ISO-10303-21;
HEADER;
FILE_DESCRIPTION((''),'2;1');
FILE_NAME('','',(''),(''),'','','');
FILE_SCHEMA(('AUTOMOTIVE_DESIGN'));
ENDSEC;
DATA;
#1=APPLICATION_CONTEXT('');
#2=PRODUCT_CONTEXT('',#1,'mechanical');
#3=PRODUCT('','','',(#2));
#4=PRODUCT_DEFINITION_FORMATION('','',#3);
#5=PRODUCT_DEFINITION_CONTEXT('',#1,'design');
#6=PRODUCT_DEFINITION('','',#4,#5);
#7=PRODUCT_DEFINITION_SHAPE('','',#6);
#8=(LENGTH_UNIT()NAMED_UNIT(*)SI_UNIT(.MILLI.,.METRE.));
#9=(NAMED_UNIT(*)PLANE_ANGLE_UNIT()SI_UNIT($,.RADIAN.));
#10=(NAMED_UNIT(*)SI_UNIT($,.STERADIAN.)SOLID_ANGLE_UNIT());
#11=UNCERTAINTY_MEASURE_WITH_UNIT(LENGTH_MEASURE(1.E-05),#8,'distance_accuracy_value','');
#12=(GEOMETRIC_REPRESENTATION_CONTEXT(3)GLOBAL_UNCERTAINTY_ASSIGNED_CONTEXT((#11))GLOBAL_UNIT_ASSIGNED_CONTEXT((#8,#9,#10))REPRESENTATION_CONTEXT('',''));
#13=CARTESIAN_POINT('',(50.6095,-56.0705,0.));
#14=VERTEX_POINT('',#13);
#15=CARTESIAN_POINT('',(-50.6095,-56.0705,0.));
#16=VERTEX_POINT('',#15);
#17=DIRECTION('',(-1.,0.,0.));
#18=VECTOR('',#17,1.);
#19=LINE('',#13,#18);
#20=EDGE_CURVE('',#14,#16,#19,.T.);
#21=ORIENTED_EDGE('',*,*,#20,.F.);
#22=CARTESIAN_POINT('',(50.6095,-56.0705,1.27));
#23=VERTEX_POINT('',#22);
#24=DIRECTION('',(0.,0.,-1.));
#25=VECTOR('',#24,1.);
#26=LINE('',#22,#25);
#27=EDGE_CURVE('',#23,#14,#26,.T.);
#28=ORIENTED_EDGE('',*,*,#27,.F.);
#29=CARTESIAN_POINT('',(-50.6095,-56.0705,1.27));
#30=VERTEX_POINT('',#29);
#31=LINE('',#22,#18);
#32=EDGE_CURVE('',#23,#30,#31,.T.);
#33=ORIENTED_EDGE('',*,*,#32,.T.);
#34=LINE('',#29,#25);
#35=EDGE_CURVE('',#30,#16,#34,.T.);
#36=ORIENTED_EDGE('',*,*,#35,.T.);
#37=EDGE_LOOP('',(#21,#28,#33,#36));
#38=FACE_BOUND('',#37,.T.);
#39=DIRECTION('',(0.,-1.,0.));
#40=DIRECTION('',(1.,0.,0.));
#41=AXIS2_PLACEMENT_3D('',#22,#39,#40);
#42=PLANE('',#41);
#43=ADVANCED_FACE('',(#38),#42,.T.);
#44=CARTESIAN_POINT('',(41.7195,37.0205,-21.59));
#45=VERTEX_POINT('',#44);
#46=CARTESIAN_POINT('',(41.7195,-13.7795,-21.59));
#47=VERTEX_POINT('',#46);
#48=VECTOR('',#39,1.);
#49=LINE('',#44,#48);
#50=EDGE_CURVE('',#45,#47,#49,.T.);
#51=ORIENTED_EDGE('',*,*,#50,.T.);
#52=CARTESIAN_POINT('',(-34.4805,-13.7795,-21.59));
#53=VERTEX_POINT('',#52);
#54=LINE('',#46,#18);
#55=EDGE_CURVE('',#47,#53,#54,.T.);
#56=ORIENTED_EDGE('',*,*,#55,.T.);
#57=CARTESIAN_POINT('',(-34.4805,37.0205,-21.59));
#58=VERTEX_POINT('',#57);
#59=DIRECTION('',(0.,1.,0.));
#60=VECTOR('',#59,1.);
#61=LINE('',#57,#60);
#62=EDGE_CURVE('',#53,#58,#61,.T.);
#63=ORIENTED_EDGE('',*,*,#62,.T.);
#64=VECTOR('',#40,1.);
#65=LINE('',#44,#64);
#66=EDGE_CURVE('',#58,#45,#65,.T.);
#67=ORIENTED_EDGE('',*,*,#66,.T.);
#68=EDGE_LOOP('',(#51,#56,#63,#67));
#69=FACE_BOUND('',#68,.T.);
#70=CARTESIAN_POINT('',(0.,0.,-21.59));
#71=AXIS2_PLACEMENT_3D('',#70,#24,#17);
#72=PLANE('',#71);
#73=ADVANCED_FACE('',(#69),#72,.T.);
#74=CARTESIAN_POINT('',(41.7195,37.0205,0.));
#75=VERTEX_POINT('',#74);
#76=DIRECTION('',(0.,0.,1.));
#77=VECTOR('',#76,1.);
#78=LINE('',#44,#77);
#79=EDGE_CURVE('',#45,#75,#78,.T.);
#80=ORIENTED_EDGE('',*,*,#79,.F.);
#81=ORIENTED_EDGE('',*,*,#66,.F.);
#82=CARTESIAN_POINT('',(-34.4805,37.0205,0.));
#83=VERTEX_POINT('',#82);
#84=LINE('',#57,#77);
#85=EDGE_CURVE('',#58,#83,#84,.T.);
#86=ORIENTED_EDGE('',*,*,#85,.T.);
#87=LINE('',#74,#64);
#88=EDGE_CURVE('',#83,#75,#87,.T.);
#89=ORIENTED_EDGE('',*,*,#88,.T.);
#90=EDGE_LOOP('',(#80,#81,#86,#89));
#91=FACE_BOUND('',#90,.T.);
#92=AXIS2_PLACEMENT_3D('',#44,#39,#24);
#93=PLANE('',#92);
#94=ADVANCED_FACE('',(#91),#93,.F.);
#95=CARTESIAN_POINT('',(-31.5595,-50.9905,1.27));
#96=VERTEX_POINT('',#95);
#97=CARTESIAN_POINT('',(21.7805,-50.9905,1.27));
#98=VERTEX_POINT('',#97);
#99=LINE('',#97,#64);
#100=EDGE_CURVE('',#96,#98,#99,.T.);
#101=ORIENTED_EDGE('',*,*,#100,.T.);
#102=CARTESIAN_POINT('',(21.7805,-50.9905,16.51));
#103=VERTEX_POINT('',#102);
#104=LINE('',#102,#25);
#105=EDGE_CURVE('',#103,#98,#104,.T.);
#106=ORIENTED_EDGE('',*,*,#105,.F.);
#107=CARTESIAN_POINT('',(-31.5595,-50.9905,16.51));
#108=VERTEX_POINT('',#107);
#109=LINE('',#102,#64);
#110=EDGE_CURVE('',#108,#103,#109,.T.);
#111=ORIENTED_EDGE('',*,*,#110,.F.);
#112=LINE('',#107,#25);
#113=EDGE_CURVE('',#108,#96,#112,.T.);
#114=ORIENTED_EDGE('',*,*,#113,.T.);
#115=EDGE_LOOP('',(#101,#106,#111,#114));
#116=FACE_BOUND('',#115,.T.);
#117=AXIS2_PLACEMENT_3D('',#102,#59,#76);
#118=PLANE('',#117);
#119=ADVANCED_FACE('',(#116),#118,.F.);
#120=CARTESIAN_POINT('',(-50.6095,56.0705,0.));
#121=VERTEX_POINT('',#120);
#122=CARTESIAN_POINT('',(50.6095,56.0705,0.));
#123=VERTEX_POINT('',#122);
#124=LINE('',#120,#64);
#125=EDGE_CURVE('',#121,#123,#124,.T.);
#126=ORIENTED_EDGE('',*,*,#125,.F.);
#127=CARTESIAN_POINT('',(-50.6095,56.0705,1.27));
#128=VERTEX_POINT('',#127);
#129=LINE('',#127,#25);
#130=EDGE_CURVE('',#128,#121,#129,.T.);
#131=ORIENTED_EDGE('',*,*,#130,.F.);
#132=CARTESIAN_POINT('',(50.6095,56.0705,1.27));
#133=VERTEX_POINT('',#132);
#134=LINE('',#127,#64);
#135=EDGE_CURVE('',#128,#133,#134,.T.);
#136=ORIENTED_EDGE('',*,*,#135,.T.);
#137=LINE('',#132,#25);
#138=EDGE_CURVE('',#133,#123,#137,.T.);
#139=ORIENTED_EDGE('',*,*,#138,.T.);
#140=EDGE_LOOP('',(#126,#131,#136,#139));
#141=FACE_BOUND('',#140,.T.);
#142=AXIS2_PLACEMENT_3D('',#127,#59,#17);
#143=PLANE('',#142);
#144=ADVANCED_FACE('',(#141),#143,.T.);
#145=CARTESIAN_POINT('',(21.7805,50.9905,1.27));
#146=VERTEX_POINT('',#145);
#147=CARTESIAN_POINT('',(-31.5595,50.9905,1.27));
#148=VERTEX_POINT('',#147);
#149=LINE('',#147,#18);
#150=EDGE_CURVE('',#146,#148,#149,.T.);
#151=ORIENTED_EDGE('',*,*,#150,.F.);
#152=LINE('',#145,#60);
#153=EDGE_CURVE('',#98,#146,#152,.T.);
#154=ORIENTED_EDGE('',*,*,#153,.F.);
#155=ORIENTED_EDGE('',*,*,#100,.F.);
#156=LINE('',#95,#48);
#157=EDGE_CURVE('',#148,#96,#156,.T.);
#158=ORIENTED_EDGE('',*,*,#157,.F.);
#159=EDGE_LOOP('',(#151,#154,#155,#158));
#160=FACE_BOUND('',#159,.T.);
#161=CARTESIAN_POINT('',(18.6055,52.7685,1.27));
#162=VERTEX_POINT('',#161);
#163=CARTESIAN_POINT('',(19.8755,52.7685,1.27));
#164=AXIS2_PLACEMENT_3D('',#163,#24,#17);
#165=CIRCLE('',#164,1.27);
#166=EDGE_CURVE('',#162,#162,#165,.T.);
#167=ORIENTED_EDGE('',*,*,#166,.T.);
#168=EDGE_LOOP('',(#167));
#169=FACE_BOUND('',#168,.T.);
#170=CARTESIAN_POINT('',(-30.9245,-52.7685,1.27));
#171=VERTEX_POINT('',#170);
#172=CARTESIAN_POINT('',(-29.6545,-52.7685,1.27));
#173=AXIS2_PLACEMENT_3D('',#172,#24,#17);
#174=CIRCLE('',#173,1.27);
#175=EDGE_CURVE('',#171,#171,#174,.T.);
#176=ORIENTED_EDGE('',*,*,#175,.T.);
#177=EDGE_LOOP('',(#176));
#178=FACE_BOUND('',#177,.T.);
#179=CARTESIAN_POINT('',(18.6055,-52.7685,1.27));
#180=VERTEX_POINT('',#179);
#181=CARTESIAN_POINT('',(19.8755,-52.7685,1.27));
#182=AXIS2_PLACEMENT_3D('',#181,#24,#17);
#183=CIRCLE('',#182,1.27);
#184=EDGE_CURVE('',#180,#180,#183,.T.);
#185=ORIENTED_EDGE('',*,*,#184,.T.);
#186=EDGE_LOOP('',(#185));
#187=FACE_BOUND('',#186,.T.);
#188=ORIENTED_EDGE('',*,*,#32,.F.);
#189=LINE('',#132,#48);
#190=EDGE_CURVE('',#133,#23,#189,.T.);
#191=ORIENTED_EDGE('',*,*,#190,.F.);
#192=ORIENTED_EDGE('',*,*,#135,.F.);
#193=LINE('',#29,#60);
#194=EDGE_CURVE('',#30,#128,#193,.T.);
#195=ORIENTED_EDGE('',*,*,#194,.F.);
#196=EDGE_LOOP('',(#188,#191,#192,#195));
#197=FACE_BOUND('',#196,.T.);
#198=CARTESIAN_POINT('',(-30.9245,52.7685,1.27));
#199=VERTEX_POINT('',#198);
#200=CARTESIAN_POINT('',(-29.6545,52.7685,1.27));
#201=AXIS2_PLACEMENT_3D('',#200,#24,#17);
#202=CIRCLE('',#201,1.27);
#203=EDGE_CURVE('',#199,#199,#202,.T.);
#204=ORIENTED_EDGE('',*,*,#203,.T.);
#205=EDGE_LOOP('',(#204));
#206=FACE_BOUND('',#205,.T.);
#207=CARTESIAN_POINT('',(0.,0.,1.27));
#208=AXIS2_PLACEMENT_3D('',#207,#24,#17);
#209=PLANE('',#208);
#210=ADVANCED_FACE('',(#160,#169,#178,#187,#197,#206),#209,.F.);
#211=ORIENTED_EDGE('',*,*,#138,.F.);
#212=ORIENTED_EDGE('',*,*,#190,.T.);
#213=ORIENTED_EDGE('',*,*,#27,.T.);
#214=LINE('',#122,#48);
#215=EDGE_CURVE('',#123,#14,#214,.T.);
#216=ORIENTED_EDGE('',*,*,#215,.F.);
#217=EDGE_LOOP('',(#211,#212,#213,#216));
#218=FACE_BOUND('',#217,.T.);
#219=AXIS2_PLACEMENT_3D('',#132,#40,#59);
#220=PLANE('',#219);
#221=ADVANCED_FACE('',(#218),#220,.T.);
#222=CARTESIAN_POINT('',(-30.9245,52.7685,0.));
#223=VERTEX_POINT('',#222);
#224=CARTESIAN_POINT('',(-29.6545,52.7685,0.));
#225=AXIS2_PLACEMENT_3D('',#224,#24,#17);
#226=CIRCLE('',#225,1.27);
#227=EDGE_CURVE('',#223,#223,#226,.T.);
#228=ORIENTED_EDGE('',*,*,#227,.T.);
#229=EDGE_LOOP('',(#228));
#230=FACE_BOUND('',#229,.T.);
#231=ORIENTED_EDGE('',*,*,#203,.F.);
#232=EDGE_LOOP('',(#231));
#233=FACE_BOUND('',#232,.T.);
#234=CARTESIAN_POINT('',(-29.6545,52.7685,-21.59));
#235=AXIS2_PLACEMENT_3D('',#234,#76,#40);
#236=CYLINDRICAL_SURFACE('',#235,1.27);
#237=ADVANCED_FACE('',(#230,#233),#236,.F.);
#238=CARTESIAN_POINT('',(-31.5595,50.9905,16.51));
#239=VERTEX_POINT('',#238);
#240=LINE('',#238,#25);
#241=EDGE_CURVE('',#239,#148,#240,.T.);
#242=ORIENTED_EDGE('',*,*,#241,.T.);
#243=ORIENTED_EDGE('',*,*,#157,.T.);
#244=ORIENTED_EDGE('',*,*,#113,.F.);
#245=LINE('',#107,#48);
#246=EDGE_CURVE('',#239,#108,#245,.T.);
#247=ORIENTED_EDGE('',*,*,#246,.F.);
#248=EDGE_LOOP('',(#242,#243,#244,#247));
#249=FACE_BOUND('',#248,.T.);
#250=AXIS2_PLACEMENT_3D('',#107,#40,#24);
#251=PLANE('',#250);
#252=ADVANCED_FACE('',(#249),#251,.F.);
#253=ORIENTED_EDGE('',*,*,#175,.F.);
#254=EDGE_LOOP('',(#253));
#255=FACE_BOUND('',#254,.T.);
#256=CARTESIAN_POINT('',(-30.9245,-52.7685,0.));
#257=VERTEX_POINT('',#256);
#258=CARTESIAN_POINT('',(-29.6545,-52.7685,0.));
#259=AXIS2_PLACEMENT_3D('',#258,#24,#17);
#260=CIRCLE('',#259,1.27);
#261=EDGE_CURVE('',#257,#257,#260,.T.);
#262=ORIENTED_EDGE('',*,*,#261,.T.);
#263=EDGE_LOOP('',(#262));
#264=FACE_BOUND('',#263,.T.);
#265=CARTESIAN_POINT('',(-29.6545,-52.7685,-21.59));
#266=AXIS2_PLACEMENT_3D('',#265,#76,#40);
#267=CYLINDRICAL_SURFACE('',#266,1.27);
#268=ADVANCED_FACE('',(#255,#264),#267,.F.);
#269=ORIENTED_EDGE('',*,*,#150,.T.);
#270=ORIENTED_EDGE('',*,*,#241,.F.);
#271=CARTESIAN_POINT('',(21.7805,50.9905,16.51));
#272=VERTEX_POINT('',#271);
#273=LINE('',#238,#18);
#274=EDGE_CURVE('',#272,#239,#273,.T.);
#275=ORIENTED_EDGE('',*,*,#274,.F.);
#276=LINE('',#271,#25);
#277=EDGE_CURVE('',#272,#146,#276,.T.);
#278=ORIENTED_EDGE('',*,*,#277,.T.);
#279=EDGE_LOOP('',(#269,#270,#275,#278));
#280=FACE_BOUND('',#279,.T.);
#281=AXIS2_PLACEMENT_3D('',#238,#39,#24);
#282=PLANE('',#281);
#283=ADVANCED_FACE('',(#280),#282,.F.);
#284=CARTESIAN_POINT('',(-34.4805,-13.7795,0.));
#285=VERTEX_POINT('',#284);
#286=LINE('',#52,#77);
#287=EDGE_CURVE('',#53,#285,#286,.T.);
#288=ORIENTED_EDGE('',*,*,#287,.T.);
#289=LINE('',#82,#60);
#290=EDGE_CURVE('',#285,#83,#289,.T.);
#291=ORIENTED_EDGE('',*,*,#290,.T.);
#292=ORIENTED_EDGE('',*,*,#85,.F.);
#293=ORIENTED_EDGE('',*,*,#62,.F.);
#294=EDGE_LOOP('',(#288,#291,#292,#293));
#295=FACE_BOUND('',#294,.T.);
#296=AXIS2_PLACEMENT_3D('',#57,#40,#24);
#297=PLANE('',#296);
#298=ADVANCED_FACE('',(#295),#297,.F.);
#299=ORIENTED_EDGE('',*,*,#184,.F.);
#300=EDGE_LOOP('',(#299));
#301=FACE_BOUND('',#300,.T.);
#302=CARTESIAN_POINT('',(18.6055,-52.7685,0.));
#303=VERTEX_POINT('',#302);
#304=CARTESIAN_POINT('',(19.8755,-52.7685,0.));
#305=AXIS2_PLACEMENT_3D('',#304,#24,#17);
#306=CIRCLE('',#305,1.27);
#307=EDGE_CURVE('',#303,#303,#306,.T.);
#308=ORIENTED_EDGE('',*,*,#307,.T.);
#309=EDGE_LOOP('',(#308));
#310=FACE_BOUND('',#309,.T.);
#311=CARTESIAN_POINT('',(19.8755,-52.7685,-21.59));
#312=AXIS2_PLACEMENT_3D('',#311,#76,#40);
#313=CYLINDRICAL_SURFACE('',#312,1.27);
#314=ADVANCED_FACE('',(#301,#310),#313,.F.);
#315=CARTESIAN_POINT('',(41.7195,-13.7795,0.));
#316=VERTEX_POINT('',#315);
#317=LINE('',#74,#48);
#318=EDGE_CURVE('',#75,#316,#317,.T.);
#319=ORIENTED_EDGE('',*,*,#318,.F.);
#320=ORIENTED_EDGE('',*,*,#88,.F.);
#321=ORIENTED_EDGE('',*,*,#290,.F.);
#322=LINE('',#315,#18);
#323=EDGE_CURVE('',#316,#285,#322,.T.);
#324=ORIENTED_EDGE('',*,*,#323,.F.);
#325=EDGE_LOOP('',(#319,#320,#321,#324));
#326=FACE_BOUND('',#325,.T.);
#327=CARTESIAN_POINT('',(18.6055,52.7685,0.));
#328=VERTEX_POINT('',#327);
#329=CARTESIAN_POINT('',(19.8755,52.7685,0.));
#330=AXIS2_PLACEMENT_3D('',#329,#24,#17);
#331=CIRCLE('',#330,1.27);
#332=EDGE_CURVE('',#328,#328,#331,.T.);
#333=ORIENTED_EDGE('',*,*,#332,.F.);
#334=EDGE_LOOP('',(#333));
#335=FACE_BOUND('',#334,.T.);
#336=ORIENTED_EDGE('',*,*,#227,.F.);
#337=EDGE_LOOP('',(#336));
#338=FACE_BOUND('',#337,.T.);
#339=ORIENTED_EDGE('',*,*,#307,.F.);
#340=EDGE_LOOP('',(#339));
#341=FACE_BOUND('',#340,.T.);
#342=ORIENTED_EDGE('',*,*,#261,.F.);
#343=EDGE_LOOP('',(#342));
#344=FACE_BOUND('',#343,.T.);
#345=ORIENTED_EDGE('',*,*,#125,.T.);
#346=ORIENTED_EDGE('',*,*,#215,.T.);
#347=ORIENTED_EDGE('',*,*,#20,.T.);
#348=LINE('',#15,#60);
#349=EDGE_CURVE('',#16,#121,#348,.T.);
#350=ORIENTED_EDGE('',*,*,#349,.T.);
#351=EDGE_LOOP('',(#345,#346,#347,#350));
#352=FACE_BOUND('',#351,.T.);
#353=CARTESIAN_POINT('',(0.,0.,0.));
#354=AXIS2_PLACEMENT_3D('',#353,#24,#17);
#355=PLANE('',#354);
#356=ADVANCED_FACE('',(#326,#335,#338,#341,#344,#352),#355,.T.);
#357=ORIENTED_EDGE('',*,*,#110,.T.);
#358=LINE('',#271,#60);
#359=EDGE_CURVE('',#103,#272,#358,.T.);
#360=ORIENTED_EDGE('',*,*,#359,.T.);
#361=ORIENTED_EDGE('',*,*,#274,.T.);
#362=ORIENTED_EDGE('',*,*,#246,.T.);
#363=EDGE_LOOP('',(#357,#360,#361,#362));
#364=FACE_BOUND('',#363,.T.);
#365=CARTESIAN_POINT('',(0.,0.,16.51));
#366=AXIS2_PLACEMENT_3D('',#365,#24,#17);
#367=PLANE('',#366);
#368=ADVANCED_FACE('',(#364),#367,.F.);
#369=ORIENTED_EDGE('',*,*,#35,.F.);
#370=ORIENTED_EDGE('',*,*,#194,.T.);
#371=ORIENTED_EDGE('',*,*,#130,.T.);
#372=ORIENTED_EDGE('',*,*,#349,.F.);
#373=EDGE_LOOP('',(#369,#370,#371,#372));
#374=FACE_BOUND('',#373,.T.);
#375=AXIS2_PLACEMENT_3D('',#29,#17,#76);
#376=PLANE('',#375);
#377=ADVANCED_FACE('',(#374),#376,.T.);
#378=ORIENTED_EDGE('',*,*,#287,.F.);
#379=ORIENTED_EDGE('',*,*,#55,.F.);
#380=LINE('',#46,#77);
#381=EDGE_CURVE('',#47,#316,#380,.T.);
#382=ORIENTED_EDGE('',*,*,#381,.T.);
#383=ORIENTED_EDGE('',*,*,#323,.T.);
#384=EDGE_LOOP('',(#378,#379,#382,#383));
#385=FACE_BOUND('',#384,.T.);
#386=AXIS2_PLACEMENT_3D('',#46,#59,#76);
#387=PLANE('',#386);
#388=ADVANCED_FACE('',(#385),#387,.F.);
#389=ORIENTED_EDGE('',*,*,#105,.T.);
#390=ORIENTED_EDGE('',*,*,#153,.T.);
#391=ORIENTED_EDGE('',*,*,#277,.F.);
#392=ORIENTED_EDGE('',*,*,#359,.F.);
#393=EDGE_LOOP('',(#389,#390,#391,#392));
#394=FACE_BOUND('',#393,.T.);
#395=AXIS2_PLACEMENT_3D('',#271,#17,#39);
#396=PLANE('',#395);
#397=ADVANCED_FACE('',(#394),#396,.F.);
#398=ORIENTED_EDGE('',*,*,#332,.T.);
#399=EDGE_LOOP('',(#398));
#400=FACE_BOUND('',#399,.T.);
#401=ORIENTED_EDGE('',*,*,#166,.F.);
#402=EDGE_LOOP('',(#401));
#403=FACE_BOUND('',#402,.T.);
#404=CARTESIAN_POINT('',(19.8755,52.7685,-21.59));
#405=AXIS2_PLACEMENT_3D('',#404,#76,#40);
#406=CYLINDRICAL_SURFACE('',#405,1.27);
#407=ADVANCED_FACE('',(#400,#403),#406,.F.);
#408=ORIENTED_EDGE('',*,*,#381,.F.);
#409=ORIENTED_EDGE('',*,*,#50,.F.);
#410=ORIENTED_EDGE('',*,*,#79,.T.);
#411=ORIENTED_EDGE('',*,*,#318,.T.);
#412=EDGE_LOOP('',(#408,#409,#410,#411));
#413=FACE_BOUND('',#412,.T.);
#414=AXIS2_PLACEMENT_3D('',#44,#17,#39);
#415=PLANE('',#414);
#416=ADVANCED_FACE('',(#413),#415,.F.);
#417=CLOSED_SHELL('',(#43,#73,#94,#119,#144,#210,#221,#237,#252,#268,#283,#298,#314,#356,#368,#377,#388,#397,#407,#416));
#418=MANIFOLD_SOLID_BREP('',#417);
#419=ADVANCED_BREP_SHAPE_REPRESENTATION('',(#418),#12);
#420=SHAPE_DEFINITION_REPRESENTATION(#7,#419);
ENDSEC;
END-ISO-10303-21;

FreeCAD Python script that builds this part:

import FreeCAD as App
import Part
import Sketcher
from FreeCAD import Vector
Q = App.Units.Quantity

doc = App.newDocument("Part")
body = doc.addObject("PartDesign::Body", "Body")

# Sketch on XY plane
sketch1 = body.newObject("Sketcher::SketchObject", "Sketch")
sketch1.AttachmentSupport = (doc.getObject("XY_Plane"), [""])
sketch1.MapMode = "FlatFace"
sketch1.addGeometry([
    Part.LineSegment(Vector(-50.6095, 56.0705, 0), Vector(-50.6095, -56.0705, 0)),
    Part.LineSegment(Vector(-50.6095, -56.0705, 0), Vector(50.6095, -56.0705, 0)),
    Part.LineSegment(Vector(50.6095, -56.0705, 0), Vector(50.6095, 56.0705, 0)),
    Part.LineSegment(Vector(50.6095, 56.0705, 0), Vector(-50.6095, 56.0705, 0)),
], False)
sketch1.addConstraint([
    Sketcher.Constraint("Coincident", 0, 2, 1, 1),
    Sketcher.Constraint("Coincident", 1, 2, 2, 1),
    Sketcher.Constraint("Coincident", 2, 2, 3, 1),
    Sketcher.Constraint("Coincident", 3, 2, 0, 1),
    Sketcher.Constraint("Vertical", 0),
    Sketcher.Constraint("Horizontal", 1),
    Sketcher.Constraint("Vertical", 2),
    Sketcher.Constraint("Horizontal", 3),
    Sketcher.Constraint("Symmetric", 0, 2, 2, 2, -1, 1),
    Sketcher.Constraint("DistanceX", 1, 1, 1, 2, Q("3.985 in")),
    Sketcher.Constraint("DistanceY", 0, 2, 0, 1, Q("4.415 in")),
])
pad1 = body.newObject("PartDesign::Pad", "Pad")
pad1.Profile = sketch1
pad1.Length = Q("0.05 in")

# Sketch on XY plane
sketch2 = body.newObject("Sketcher::SketchObject", "Sketch001")
sketch2.AttachmentSupport = (doc.getObject("XY_Plane"), [""])
sketch2.MapMode = "FlatFace"
sketch2.AttachmentOffset = App.Placement(Vector(0, 0, 0.05 * 25.4), App.Rotation())
sketch2.addGeometry([
    Part.LineSegment(Vector(-31.5595, 50.9905, 0), Vector(-31.5595, -50.9905, 0)),
    Part.LineSegment(Vector(-31.5595, -50.9905, 0), Vector(21.7805, -50.9905, 0)),
    Part.LineSegment(Vector(21.7805, -50.9905, 0), Vector(21.7805, 50.9905, 0)),
    Part.LineSegment(Vector(21.7805, 50.9905, 0), Vector(-31.5595, 50.9905, 0)),
], False)
sketch2.addConstraint([
    Sketcher.Constraint("Coincident", 0, 2, 1, 1),
    Sketcher.Constraint("Coincident", 1, 2, 2, 1),
    Sketcher.Constraint("Coincident", 2, 2, 3, 1),
    Sketcher.Constraint("Coincident", 3, 2, 0, 1),
    Sketcher.Constraint("Vertical", 0),
    Sketcher.Constraint("Horizontal", 1),
    Sketcher.Constraint("Vertical", 2),
    Sketcher.Constraint("Horizontal", 3),
    Sketcher.Constraint("DistanceX", 1, 1, 1, 2, Q("2.1 in")),
    Sketcher.Constraint("DistanceY", 0, 2, 0, 1, Q("4.015 in")),
    Sketcher.Constraint("DistanceX", 0, 2, -1, 1, Q("1.2425 in")),
    Sketcher.Constraint("DistanceY", 0, 2, -1, 1, Q("2.0075 in")),
])
pad2 = body.newObject("PartDesign::Pad", "Pad001")
pad2.Profile = sketch2
pad2.Length = Q("0.6 in")

# Sketch on XY plane
sketch3 = body.newObject("Sketcher::SketchObject", "Sketch002")
sketch3.AttachmentSupport = (doc.getObject("XY_Plane"), [""])
sketch3.MapMode = "FlatFace"
sketch3.addGeometry([
    Part.LineSegment(Vector(41.7195, 37.0205, 0), Vector(41.7195, -13.7795, 0)),
    Part.LineSegment(Vector(41.7195, -13.7795, 0), Vector(-34.4805, -13.7795, 0)),
    Part.LineSegment(Vector(-34.4805, -13.7795, 0), Vector(-34.4805, 37.0205, 0)),
    Part.LineSegment(Vector(-34.4805, 37.0205, 0), Vector(41.7195, 37.0205, 0)),
], False)
sketch3.addConstraint([
    Sketcher.Constraint("Coincident", 0, 2, 1, 1),
    Sketcher.Constraint("Coincident", 1, 2, 2, 1),
    Sketcher.Constraint("Coincident", 2, 2, 3, 1),
    Sketcher.Constraint("Coincident", 3, 2, 0, 1),
    Sketcher.Constraint("Vertical", 0),
    Sketcher.Constraint("Horizontal", 1),
    Sketcher.Constraint("Vertical", 2),
    Sketcher.Constraint("Horizontal", 3),
    Sketcher.Constraint("DistanceX", 1, 2, 1, 1, Q("3 in")),
    Sketcher.Constraint("DistanceY", 0, 2, 0, 1, Q("2 in")),
    Sketcher.Constraint("DistanceX", -1, 1, 0, 2, Q("1.6425 in")),
    Sketcher.Constraint("DistanceY", 0, 2, -1, 1, Q("0.5425 in")),
])
pad3 = body.newObject("PartDesign::Pad", "Pad002")
pad3.Profile = sketch3
pad3.Length = Q("0.85 in")
pad3.Reversed = True

# Sketch on XY plane
sketch4 = body.newObject("Sketcher::SketchObject", "Sketch003")
sketch4.AttachmentSupport = (doc.getObject("XY_Plane"), [""])
sketch4.MapMode = "FlatFace"
sketch4.AttachmentOffset = App.Placement(Vector(0, 0, 0.05 * 25.4), App.Rotation())
sketch4.addGeometry([
    Part.Circle(Vector(-29.6545, 52.7685, 0), Vector(0, 0, 1), 1.27),
    Part.Circle(Vector(19.8755, 52.7685, 0), Vector(0, 0, 1), 1.27),
    Part.Circle(Vector(-29.6545, -52.7685, 0), Vector(0, 0, 1), 1.27),
    Part.Circle(Vector(19.8755, -52.7685, 0), Vector(0, 0, 1), 1.27),
], False)
sketch4.addConstraint([
    Sketcher.Constraint("Equal", 0, 1),
    Sketcher.Constraint("Equal", 1, 2),
    Sketcher.Constraint("Equal", 2, 3),
    Sketcher.Constraint("Symmetric", 0, 3, 2, 3, -1),
    Sketcher.Constraint("Symmetric", 1, 3, 3, 3, -1),
    Sketcher.Constraint("Horizontal", 0, 3, 1, 3),
    Sketcher.Constraint("Diameter", 0, Q("0.1 in")),
    Sketcher.Constraint("DistanceX", 0, 3, 1, 3, Q("1.95 in")),
    Sketcher.Constraint("DistanceY", 2, 3, 0, 3, Q("4.155 in")),
    Sketcher.Constraint("DistanceX", 0, 3, -1, 1, Q("1.1675 in")),
])
pocket1 = body.newObject("PartDesign::Pocket", "Pocket")
pocket1.Profile = sketch4
pocket1.Type = "ThroughAll"
pocket1.Midplane = True

doc.recompute()
